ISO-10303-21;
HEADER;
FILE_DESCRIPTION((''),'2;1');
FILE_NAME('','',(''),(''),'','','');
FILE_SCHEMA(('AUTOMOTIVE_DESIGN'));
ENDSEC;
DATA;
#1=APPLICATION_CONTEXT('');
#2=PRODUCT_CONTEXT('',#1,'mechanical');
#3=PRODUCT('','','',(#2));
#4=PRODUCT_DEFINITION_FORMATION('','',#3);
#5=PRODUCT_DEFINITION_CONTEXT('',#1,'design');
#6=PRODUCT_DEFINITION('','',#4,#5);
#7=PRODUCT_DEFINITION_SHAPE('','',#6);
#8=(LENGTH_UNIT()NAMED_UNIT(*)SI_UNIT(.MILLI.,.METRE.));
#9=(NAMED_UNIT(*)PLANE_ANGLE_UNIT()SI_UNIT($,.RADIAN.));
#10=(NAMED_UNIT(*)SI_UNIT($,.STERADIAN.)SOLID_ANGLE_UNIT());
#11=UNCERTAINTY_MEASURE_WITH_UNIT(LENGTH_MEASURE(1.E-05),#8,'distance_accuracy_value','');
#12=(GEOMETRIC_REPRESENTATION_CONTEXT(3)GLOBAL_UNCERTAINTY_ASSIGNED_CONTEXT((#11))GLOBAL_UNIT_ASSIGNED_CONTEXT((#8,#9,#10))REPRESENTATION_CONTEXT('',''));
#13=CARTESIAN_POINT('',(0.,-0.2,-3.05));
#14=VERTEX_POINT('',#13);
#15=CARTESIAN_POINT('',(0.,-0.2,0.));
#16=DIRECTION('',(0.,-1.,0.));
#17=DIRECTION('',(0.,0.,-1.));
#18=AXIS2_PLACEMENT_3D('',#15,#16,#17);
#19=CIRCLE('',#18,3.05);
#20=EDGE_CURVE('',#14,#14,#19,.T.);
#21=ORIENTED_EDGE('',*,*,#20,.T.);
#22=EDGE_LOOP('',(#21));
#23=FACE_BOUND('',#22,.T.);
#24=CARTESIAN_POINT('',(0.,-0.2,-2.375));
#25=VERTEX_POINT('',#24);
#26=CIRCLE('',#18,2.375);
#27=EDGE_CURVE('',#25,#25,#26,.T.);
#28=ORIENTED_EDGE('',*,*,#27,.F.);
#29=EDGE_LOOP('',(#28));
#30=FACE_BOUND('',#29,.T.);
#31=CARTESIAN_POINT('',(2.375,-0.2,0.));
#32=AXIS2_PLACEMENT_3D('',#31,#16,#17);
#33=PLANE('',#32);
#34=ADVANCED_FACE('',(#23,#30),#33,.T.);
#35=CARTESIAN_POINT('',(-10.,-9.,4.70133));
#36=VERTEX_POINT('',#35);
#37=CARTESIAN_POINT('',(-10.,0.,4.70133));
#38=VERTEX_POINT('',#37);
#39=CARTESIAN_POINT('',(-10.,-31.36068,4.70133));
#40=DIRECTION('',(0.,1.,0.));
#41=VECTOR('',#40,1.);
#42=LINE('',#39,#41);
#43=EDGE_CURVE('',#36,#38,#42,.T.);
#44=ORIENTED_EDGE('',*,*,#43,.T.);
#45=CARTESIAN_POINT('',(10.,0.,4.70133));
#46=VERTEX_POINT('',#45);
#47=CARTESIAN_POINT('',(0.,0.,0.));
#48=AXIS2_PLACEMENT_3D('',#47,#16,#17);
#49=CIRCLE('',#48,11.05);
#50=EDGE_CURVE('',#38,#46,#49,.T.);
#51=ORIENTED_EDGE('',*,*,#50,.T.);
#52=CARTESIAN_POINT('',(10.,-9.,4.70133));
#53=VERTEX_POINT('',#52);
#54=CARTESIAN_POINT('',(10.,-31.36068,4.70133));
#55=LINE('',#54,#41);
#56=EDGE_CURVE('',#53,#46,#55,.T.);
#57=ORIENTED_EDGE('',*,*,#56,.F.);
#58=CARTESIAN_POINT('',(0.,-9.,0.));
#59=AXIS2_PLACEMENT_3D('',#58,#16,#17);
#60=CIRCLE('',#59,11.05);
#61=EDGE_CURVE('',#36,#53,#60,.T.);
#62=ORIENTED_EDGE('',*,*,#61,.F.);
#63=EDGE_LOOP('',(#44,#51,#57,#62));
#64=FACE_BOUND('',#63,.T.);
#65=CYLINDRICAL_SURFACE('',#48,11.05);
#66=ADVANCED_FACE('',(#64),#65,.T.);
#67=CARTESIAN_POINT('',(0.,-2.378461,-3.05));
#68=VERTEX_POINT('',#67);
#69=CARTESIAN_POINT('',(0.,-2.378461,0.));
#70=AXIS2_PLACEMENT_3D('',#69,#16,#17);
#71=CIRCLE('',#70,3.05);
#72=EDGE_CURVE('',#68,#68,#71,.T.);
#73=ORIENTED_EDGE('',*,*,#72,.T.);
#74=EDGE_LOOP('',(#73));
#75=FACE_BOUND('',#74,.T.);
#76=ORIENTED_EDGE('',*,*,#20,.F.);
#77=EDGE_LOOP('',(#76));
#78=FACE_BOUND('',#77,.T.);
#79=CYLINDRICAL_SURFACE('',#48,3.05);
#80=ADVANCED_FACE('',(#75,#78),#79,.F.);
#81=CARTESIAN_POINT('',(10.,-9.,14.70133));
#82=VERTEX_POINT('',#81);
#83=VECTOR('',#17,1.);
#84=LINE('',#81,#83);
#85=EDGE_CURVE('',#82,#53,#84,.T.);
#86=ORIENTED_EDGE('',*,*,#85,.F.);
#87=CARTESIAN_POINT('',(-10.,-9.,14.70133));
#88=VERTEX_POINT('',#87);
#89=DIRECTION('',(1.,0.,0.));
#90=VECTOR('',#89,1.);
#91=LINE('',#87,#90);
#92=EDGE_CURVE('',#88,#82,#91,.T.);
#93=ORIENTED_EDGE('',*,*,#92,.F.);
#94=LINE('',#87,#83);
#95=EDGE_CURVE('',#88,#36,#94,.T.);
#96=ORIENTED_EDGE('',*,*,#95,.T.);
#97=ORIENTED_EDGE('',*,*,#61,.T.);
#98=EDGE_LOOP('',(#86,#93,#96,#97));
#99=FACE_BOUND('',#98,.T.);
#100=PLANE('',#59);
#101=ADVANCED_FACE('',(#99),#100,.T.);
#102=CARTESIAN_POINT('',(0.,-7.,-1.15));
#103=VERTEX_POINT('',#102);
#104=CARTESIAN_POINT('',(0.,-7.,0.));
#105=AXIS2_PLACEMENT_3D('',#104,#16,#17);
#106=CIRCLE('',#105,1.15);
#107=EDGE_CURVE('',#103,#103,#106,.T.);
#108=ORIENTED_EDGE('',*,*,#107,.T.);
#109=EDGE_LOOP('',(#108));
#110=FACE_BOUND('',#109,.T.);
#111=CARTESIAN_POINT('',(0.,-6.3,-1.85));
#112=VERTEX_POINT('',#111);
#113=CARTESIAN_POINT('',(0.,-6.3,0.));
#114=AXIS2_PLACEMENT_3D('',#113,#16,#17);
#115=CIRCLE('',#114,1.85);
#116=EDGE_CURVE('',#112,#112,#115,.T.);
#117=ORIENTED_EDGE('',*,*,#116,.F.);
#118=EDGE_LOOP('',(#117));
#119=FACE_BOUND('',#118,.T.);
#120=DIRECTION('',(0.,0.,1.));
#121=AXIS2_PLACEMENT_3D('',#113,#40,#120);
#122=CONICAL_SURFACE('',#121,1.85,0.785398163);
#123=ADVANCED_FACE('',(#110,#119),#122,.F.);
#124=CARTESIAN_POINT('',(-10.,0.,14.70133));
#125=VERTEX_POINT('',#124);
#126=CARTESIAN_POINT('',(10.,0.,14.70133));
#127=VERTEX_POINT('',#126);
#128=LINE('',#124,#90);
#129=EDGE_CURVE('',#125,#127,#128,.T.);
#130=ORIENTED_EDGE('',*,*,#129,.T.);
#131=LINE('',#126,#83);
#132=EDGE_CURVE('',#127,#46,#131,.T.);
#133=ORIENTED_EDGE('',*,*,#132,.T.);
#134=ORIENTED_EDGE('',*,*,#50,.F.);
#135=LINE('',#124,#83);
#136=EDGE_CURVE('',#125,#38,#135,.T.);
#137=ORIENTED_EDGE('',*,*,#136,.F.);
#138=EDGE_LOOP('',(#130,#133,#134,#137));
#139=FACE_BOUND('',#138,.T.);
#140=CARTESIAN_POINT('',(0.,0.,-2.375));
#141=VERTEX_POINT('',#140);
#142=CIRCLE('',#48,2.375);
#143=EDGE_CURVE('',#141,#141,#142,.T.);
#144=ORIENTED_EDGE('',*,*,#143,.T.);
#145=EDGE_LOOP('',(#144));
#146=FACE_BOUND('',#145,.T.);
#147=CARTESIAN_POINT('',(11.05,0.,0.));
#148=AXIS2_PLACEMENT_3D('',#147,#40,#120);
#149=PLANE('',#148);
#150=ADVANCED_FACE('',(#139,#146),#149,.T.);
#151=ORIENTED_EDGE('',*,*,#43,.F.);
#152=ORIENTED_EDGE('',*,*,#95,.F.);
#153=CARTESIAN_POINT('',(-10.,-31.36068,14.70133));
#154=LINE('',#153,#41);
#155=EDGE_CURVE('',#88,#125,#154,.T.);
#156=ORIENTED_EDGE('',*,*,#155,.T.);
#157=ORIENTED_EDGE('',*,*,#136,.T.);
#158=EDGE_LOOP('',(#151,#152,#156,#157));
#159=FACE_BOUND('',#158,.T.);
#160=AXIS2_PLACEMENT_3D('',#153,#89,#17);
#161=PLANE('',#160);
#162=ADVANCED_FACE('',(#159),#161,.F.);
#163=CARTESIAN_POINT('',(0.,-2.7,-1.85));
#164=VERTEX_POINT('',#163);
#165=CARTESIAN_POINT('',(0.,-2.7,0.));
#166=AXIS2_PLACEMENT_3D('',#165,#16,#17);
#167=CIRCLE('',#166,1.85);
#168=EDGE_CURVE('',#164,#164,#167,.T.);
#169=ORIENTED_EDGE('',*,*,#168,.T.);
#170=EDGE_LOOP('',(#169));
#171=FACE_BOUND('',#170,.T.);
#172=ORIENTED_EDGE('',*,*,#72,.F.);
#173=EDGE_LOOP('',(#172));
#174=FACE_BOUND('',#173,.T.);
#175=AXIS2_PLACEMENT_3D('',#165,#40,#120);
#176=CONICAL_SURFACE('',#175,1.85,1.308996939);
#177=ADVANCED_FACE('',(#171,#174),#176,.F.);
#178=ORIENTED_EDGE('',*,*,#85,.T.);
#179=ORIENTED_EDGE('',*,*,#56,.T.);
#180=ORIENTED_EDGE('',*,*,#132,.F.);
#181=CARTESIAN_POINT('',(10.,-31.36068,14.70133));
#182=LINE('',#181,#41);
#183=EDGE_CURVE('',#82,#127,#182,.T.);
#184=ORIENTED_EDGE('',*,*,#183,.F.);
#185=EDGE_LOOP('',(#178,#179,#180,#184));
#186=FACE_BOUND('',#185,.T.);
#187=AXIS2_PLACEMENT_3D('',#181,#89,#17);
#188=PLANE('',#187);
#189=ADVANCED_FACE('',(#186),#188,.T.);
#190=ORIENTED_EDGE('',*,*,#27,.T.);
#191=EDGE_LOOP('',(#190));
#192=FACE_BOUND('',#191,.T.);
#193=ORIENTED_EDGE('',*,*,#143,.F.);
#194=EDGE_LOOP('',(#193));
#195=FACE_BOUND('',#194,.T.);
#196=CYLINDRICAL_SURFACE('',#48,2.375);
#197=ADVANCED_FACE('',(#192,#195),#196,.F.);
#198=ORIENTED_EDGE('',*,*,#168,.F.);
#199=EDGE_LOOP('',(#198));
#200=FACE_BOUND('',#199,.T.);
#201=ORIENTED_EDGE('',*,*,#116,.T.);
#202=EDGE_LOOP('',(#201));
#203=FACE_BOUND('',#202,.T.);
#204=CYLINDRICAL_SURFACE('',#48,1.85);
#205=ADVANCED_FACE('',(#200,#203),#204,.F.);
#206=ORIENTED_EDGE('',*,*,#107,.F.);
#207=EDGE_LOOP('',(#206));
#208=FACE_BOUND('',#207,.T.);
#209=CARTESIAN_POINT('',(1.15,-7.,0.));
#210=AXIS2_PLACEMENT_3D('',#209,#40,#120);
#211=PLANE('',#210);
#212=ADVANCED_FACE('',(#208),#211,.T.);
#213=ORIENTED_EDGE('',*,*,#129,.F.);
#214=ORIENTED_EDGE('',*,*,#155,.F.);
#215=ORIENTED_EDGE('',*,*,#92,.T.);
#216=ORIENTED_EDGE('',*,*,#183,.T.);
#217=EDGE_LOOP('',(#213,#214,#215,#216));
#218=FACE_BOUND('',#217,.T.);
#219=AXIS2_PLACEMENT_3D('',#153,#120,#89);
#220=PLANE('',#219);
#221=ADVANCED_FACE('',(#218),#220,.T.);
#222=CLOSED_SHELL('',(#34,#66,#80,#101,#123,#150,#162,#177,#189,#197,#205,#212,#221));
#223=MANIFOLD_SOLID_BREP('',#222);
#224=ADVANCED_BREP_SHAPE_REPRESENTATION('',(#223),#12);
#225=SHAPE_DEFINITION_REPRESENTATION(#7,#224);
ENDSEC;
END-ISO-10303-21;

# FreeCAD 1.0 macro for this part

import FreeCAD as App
import Part
import Sketcher
from FreeCAD import Vector
Q = App.Units.Quantity


def add_polygon(sketch, points):
    """Adds a closed chain of lines whose ends are joined by coincident constraints."""
    first, n = sketch.GeometryCount, len(points)
    for a, b in zip(points, points[1:] + points[:1]):
        sketch.addGeometry(Part.LineSegment(App.Vector(*a, 0), App.Vector(*b, 0)), False)
    for i in range(n):
        sketch.addConstraint(Sketcher.Constraint("Coincident", first + i, 2, first + (i + 1) % n, 1))

doc = App.newDocument("Part")
params = doc.addObject("Spreadsheet::Sheet", "Params")
for row, (alias, value) in enumerate([
    ("sketch1_height", "2 mm"),
    ("sketch1_height2", "9 mm"),
    ("sketch1_height3", "0.2 mm"),
    ("sketch1_height4", "3.6 mm"),
    ("sketch1_width", "1.15 mm"),
    ("revolution_angle", "360 deg"),
    ("sketch2_width", "20 mm"),
    ("sketch2_height", "10 mm"),
    ("pad1_length", "9 mm"),
], start=1):
    params.set(f"A{row}", alias)
    params.set(f"B{row}", "=" + value)
    params.setAlias(f"B{row}", alias)

body = doc.addObject("PartDesign::Body", "Body")

# Sketch on XY plane
sketch1 = doc.addObject("Sketcher::SketchObject", "Sketch")
body.addObject(sketch1)
sketch1.AttachmentSupport = (doc.XY_Plane, [""])
sketch1.MapMode = "FlatFace"
add_polygon(sketch1, [(11.05, 0), (2.375, 0), (2.375, -0.2), (3.05, -0.2), (3.05, -2.378461), (1.85, -2.7), (1.85, -6.3), (1.15, -7), (0, -7), (0, -9), (11.05, -9)])  # lines 0-10
sketch1.addConstraint([
    Sketcher.Constraint("Horizontal", 0),
    Sketcher.Constraint("Vertical", 1),
    Sketcher.Constraint("Horizontal", 2),
    Sketcher.Constraint("Vertical", 3),
    Sketcher.Constraint("Vertical", 5),
    Sketcher.Constraint("Horizontal", 7),
    Sketcher.Constraint("Vertical", 8),
    Sketcher.Constraint("Horizontal", 9),
    Sketcher.Constraint("Vertical", 10),
    Sketcher.Constraint("PointOnObject", 0, 2, -1),
    Sketcher.Constraint("PointOnObject", 7, 2, -2),
    Sketcher.Constraint("DistanceY", 8, 2, 8, 1, 2.0),
    Sketcher.Constraint("DistanceY", 10, 1, 10, 2, 9.0),
    Sketcher.Constraint("Angle", 4, Q("-165 deg")),
    Sketcher.Constraint("Angle", 6, Q("-135 deg")),
    Sketcher.Constraint("DistanceY", 1, 2, 1, 1, 0.2),
    Sketcher.Constraint("DistanceY", 5, 2, 5, 1, 3.6),
    Sketcher.Constraint("DistanceX", 3, 2, 9, 2, 8.0),
    Sketcher.Constraint("DistanceX", 7, 2, 7, 1, 1.15),
    Sketcher.Constraint("DistanceX", 9, 1, 9, 2, 11.05),
    Sketcher.Constraint("DistanceY", 4, 2, -1, 1, 2.7),
    Sketcher.Constraint("DistanceX", 0, 2, 0, 1, 8.675),
])
sketch1.setExpression("Constraints[22]", "Params.sketch1_height")
sketch1.setExpression("Constraints[23]", "Params.sketch1_height2")
sketch1.setExpression("Constraints[26]", "Params.sketch1_height3")
sketch1.setExpression("Constraints[27]", "Params.sketch1_height4")
sketch1.setExpression("Constraints[29]", "Params.sketch1_width")
revolution = doc.addObject("PartDesign::Revolution", "Revolution")
body.addObject(revolution)
revolution.Profile = sketch1
revolution.ReferenceAxis = (sketch1, ["V_Axis"])
revolution.setExpression("Angle", "Params.revolution_angle")

# Sketch on XZ plane
sketch2 = doc.addObject("Sketcher::SketchObject", "Sketch001")
body.addObject(sketch2)
sketch2.AttachmentSupport = (doc.XZ_Plane, [""])
sketch2.MapMode = "FlatFace"
add_polygon(sketch2, [(-10, 4.70133), (-10, 14.70133), (10, 14.70133), (10, 4.70133)])  # lines 0-3
sketch2.addConstraint([
    Sketcher.Constraint("Vertical", 0),
    Sketcher.Constraint("Horizontal", 1),
    Sketcher.Constraint("Vertical", 2),
    Sketcher.Constraint("Horizontal", 3),
    Sketcher.Constraint("DistanceX", 1, 1, 1, 2, 20.0),
    Sketcher.Constraint("DistanceY", 0, 1, 0, 2, 10.0),
    Sketcher.Constraint("DistanceX", 0, 2, -1, 1, 10.0),
    Sketcher.Constraint("DistanceY", -1, 1, 0, 2, 14.70133),
])
sketch2.setExpression("Constraints[8]", "Params.sketch2_width")
sketch2.setExpression("Constraints[9]", "Params.sketch2_height")
pad1 = doc.addObject("PartDesign::Pad", "Pad")
body.addObject(pad1)
pad1.Profile = sketch2
pad1.setExpression("Length", "Params.pad1_length")

doc.recompute()
